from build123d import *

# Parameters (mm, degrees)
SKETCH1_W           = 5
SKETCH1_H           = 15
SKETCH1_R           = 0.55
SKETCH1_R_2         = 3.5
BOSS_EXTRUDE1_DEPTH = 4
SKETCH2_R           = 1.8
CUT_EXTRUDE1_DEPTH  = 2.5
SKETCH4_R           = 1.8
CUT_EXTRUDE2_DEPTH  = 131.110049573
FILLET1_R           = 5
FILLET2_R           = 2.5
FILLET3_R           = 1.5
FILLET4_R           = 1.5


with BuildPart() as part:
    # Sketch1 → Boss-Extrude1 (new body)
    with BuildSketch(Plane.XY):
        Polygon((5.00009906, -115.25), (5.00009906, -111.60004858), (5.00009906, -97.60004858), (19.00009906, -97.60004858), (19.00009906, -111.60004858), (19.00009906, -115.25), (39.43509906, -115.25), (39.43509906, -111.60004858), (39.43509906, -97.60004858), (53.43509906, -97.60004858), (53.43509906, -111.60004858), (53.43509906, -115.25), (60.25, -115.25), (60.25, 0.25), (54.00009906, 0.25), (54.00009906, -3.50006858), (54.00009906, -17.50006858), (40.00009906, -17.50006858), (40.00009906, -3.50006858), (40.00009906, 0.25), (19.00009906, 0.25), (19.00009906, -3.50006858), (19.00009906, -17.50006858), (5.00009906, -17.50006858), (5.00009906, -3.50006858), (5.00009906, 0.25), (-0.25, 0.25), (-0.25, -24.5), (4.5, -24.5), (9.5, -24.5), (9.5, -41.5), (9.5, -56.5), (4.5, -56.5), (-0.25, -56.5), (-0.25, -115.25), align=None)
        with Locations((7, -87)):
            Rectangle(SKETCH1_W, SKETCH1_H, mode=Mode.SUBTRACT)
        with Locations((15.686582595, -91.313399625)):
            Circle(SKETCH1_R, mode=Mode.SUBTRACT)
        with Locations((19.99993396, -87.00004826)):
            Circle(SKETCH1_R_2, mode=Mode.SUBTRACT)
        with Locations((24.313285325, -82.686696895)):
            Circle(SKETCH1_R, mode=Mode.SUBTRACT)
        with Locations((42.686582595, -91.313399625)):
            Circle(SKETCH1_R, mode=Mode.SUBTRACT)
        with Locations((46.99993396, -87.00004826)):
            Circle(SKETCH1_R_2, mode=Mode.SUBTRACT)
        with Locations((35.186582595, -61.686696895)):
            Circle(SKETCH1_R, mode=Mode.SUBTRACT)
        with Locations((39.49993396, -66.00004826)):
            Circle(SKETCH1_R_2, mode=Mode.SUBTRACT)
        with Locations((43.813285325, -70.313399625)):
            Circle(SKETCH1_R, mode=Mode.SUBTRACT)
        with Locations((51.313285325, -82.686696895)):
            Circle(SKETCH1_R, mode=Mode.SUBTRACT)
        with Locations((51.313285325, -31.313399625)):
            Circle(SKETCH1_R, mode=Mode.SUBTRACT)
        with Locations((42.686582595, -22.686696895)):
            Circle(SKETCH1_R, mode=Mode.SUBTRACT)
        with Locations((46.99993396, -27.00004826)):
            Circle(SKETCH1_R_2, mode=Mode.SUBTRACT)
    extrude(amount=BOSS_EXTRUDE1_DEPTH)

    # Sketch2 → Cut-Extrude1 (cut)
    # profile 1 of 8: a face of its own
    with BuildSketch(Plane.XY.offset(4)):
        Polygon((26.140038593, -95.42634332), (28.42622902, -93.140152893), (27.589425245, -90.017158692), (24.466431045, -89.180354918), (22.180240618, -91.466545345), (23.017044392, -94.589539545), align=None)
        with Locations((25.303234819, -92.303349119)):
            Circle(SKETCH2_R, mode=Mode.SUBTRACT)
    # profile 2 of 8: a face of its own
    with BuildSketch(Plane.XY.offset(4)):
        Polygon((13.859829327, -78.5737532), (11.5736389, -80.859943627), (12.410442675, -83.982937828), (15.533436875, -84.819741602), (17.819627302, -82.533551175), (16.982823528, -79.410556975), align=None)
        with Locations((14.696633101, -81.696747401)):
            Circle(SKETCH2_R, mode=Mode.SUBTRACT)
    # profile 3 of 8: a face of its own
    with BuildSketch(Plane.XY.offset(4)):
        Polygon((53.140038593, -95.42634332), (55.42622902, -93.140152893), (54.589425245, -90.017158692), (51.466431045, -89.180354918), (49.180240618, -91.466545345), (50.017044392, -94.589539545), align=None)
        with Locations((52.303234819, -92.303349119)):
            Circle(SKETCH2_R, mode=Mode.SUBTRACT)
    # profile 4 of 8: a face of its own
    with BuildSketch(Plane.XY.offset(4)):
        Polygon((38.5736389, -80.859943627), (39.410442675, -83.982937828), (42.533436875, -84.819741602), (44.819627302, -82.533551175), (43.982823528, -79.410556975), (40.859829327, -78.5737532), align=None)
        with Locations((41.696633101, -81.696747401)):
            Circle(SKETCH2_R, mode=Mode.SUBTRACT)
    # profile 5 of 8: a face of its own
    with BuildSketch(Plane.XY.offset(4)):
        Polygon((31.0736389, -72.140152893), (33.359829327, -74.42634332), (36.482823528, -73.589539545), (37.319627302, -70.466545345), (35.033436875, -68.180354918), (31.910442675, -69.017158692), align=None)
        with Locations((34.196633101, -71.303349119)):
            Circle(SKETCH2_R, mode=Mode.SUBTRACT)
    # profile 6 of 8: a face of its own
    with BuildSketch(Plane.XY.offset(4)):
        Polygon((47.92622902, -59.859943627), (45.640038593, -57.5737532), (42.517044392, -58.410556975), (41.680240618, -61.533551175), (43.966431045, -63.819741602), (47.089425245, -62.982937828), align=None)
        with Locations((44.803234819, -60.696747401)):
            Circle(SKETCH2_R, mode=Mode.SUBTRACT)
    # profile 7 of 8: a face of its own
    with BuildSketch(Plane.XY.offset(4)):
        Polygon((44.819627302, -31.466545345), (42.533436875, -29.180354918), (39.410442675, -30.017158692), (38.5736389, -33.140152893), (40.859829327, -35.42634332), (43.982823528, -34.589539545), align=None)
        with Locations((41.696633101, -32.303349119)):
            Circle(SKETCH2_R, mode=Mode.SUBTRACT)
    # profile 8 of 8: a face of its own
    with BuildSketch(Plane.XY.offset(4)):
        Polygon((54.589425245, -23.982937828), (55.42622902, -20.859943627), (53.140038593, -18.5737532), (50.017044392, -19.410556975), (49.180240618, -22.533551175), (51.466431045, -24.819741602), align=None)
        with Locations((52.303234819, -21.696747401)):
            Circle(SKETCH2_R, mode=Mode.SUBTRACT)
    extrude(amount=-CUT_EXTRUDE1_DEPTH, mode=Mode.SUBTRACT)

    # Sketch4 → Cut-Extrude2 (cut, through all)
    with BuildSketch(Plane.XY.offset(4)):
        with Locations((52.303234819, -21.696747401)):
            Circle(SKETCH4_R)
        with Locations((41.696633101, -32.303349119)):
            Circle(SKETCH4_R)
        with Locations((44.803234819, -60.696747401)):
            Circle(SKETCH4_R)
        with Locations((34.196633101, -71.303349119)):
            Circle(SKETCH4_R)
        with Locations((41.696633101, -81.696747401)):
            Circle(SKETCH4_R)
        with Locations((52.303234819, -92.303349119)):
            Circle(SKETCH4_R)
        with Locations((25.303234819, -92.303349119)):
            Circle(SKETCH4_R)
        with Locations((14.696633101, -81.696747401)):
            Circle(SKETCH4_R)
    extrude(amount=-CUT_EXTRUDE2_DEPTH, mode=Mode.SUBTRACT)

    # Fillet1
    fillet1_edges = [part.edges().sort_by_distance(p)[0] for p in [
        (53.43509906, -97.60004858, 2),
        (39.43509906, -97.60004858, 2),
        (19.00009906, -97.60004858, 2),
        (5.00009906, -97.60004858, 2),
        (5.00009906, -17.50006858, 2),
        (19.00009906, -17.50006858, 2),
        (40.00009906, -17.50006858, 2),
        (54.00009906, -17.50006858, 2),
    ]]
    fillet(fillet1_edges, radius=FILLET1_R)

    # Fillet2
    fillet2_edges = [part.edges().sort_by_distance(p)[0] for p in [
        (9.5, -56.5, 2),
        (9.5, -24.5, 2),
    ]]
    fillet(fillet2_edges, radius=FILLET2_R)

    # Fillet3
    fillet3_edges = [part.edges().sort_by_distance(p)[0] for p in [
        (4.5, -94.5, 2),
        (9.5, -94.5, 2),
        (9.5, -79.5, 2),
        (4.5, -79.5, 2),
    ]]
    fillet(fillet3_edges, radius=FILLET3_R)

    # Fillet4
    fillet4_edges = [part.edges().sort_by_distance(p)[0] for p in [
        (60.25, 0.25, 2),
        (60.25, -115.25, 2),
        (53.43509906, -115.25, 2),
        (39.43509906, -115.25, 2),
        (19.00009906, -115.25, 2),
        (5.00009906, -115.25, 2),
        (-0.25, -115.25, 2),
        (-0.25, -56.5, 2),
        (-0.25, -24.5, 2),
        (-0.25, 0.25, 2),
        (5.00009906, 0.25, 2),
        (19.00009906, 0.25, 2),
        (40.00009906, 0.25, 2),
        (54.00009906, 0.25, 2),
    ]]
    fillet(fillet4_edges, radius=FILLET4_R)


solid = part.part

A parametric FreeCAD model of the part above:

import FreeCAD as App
import Part
import Sketcher

V = App.Vector
Q = App.Units.Quantity


def edges_at(feature, points):
    """Names of the edges that pass closest to the given points."""
    edges = feature.Shape.Edges
    near = lambda p: min(range(len(edges)), key=lambda i: edges[i].distToShape(Part.Vertex(*p))[0])
    return sorted({f"Edge{near(p) + 1}" for p in points})


def add_polygon(sketch, points):
    """Adds a closed chain of lines whose ends are joined by coincident constraints."""
    first, n = sketch.GeometryCount, len(points)
    for a, b in zip(points, points[1:] + points[:1]):
        sketch.addGeometry(Part.LineSegment(App.Vector(*a, 0), App.Vector(*b, 0)), False)
    for i in range(n):
        sketch.addConstraint(Sketcher.Constraint("Coincident", first + i, 2, first + (i + 1) % n, 1))

doc = App.newDocument("Part")
body = doc.addObject("PartDesign::Body", "Body")

sketch1 = doc.addObject("Sketcher::SketchObject", "Sketch")
body.addObject(sketch1)
sketch1.AttachmentSupport = (doc.XY_Plane, [""])
sketch1.MapMode = "FlatFace"
add_polygon(sketch1, [(5.000099, -115.25), (5.000099, -97.600049), (19.000099, -97.600049), (19.000099, -115.25), (39.435099, -115.25), (39.435099, -97.600049), (53.435099, -97.600049), (53.435099, -115.25), (60.25, -115.25), (60.25, 0.25), (54.000099, 0.25), (54.000099, -17.500069), (40.000099, -17.500069), (40.000099, 0.25), (19.000099, 0.25), (19.000099, -17.500069), (5.000099, -17.500069), (5.000099, 0.25), (-0.25, 0.25), (-0.25, -24.5), (9.5, -24.5), (9.5, -56.5), (-0.25, -56.5), (-0.25, -115.25)])
add_polygon(sketch1, [(9.5, -94.5), (4.5, -94.5), (4.5, -79.5), (9.5, -79.5)])
sketch1.addGeometry(Part.Circle(V(15.686583, -91.3134, 0), V(0, 0, 1), 0.55), False)
sketch1.addGeometry(Part.Circle(V(19.999934, -87.000048, 0), V(0, 0, 1), 3.5), False)
sketch1.addGeometry(Part.Circle(V(24.313285, -82.686697, 0), V(0, 0, 1), 0.55), False)
sketch1.addGeometry(Part.Circle(V(42.686583, -91.3134, 0), V(0, 0, 1), 0.55), False)
sketch1.addGeometry(Part.Circle(V(46.999934, -87.000048, 0), V(0, 0, 1), 3.5), False)
sketch1.addGeometry(Part.Circle(V(51.313285, -82.686697, 0), V(0, 0, 1), 0.55), False)
sketch1.addGeometry(Part.Circle(V(39.499934, -66.000048, 0), V(0, 0, 1), 3.5), False)
sketch1.addGeometry(Part.Circle(V(35.186583, -61.686697, 0), V(0, 0, 1), 0.55), False)
sketch1.addGeometry(Part.Circle(V(43.813285, -70.3134, 0), V(0, 0, 1), 0.55), False)
sketch1.addGeometry(Part.Circle(V(51.313285, -31.3134, 0), V(0, 0, 1), 0.55), False)
sketch1.addGeometry(Part.Circle(V(42.686583, -22.686697, 0), V(0, 0, 1), 0.55), False)
sketch1.addGeometry(Part.Circle(V(46.999934, -27.000048, 0), V(0, 0, 1), 3.5), False)
sketch1.addConstraint([
    Sketcher.Constraint("Vertical", 0),
    Sketcher.Constraint("Horizontal", 1),
    Sketcher.Constraint("Vertical", 2),
    Sketcher.Constraint("Horizontal", 3),
    Sketcher.Constraint("Vertical", 4),
    Sketcher.Constraint("Horizontal", 5),
    Sketcher.Constraint("Vertical", 6),
    Sketcher.Constraint("Horizontal", 7),
    Sketcher.Constraint("Vertical", 8),
    Sketcher.Constraint("Horizontal", 9),
    Sketcher.Constraint("Vertical", 10),
    Sketcher.Constraint("Horizontal", 11),
    Sketcher.Constraint("Vertical", 12),
    Sketcher.Constraint("Horizontal", 13),
    Sketcher.Constraint("Vertical", 14),
    Sketcher.Constraint("Horizontal", 15),
    Sketcher.Constraint("Vertical", 16),
    Sketcher.Constraint("Horizontal", 17),
    Sketcher.Constraint("Vertical", 18),
    Sketcher.Constraint("Horizontal", 19),
    Sketcher.Constraint("Vertical", 20),
    Sketcher.Constraint("Horizontal", 21),
    Sketcher.Constraint("Vertical", 22),
    Sketcher.Constraint("Horizontal", 23),
    Sketcher.Constraint("Horizontal", 24),
    Sketcher.Constraint("Vertical", 25),
    Sketcher.Constraint("Horizontal", 26),
    Sketcher.Constraint("Vertical", 27),
    Sketcher.Constraint("Equal", 28, 30),
    Sketcher.Constraint("Equal", 30, 31),
    Sketcher.Constraint("Equal", 29, 32),
    Sketcher.Constraint("Equal", 31, 33),
    Sketcher.Constraint("Equal", 32, 34),
    Sketcher.Constraint("Equal", 33, 35),
    Sketcher.Constraint("Equal", 35, 36),
    Sketcher.Constraint("Equal", 36, 37),
    Sketcher.Constraint("Equal", 37, 38),
    Sketcher.Constraint("Equal", 34, 39),
    Sketcher.Constraint("Horizontal", 28, 3, 31, 3),
    Sketcher.Constraint("Horizontal", 29, 3, 32, 3),
    Sketcher.Constraint("Horizontal", 30, 3, 33, 3),
    Sketcher.Constraint("Horizontal", 1, 2, 4, 2),
    Sketcher.Constraint("Horizontal", 3, 2, 6, 2),
    Sketcher.Constraint("Horizontal", 9, 2, 12, 2),
    Sketcher.Constraint("Horizontal", 11, 2, 14, 2),
    Sketcher.Constraint("Horizontal", 13, 2, 16, 2),
    Sketcher.Constraint("Horizontal", 7, 2, 22, 2),
    Sketcher.Constraint("Vertical", 33, 3, 37, 3),
    Sketcher.Constraint("Vertical", 31, 3, 38, 3),
    Sketcher.Constraint("Vertical", 32, 3, 39, 3),
    Sketcher.Constraint("Vertical", 2, 2, 13, 2),
    Sketcher.Constraint("Vertical", 0, 2, 15, 2),
    Sketcher.Constraint("Vertical", 18, 2, 21, 2),
    Sketcher.Constraint("Vertical", 20, 2, 26, 2),
    Sketcher.Constraint("Equal", 1, 5),
    Sketcher.Constraint("Equal", 5, 11),
    Sketcher.Constraint("Diameter", 29, 7.0),
    Sketcher.Constraint("Diameter", 28, 1.1),
    Sketcher.Constraint("DistanceX", 1, 1, 1, 2, 14.0),
    Sketcher.Constraint("DistanceX", 13, 2, 13, 1, 21.0),
    Sketcher.Constraint("DistanceX", 24, 2, 24, 1, 5.0),
    Sketcher.Constraint("DistanceY", 20, 2, 20, 1, 32.0),
    Sketcher.Constraint("DistanceY", 25, 1, 25, 2, 15.0),
    Sketcher.Constraint("DistanceY", 8, 1, 8, 2, 115.5),
    Sketcher.Constraint("DistanceX", 28, 3, 31, 3, 27.0),
    Sketcher.Constraint("DistanceX", 29, 3, 32, 3, 27.0),
    Sketcher.Constraint("DistanceX", 30, 3, 33, 3, 27.0),
    Sketcher.Constraint("DistanceY", 32, 3, 34, 3, 21.0),
    Sketcher.Constraint("DistanceY", 30, 3, 35, 3, 21.0),
    Sketcher.Constraint("DistanceY", 31, 3, 36, 3, 21.0),
    Sketcher.Constraint("DistanceY", 36, 3, 37, 3, 39.0),
    Sketcher.Constraint("DistanceY", 35, 3, 38, 3, 39.0),
    Sketcher.Constraint("DistanceY", 34, 3, 39, 3, 39.0),
    Sketcher.Constraint("DistanceX", 19, 1, 19, 2, 9.75),
    Sketcher.Constraint("DistanceY", 18, 2, 18, 1, 24.75),
    Sketcher.Constraint("DistanceY", 18, 2, -1, 1, 24.5),
    Sketcher.Constraint("DistanceX", -1, 1, 19, 2, 9.5),
    Sketcher.Constraint("DistanceY", 24, 2, -1, 1, 94.5),
    Sketcher.Constraint("DistanceX", 34, 3, 32, 3, 7.5),
    Sketcher.Constraint("DistanceX", 36, 3, 33, 3, 7.5),
    Sketcher.Constraint("DistanceX", 35, 3, 38, 3, 7.5),
    Sketcher.Constraint("DistanceY", 0, 2, 29, 3, 10.6),
    Sketcher.Constraint("DistanceX", 3, 1, 3, 2, 20.435),
    Sketcher.Constraint("DistanceX", -1, 1, 7, 2, 60.25),
    Sketcher.Constraint("DistanceX", 7, 1, 7, 2, 6.814901),
    Sketcher.Constraint("DistanceY", 0, 1, 0, 2, 17.649951),
    Sketcher.Constraint("DistanceY", 10, 2, 10, 1, 17.750069),
    Sketcher.Constraint("DistanceY", 28, 3, -1, 1, 91.3134),
    Sketcher.Constraint("DistanceX", 28, 3, 29, 3, 4.313351),
    Sketcher.Constraint("DistanceX", 29, 3, 30, 3, 4.313351),
    Sketcher.Constraint("DistanceY", 29, 3, 30, 3, 4.313351),
    Sketcher.Constraint("DistanceX", -1, 1, 28, 3, 15.686583),
])
pad1 = doc.addObject("PartDesign::Pad", "Pad")
body.addObject(pad1)
pad1.Profile = sketch1
pad1.Length = 4

sketch2 = doc.addObject("Sketcher::SketchObject", "Sketch001")
body.addObject(sketch2)
sketch2.AttachmentSupport = (doc.XY_Plane, [""])
sketch2.MapMode = "FlatFace"
sketch2.AttachmentOffset = App.Placement(V(0, 0, 4), App.Rotation())
add_polygon(sketch2, [(26.140039, -95.426343), (28.426229, -93.140153), (27.589425, -90.017159), (24.466431, -89.180355), (22.180241, -91.466545), (23.017044, -94.58954)])
sketch2.addGeometry(Part.Circle(V(25.303235, -92.303349, 0), V(0, 0, 1), 1.8), False)
add_polygon(sketch2, [(13.859829, -78.573753), (11.573639, -80.859944), (12.410443, -83.982938), (15.533437, -84.819742), (17.819627, -82.533551), (16.982824, -79.410557)])
sketch2.addGeometry(Part.Circle(V(14.696633, -81.696747, 0), V(0, 0, 1), 1.8), False)
add_polygon(sketch2, [(53.140039, -95.426343), (55.426229, -93.140153), (54.589425, -90.017159), (51.466431, -89.180355), (49.180241, -91.466545), (50.017044, -94.58954)])
sketch2.addGeometry(Part.Circle(V(52.303235, -92.303349, 0), V(0, 0, 1), 1.8), False)
add_polygon(sketch2, [(38.573639, -80.859944), (39.410443, -83.982938), (42.533437, -84.819742), (44.819627, -82.533551), (43.982824, -79.410557), (40.859829, -78.573753)])
sketch2.addGeometry(Part.Circle(V(41.696633, -81.696747, 0), V(0, 0, 1), 1.8), False)
add_polygon(sketch2, [(31.073639, -72.140153), (33.359829, -74.426343), (36.482824, -73.58954), (37.319627, -70.466545), (35.033437, -68.180355), (31.910443, -69.017159)])
sketch2.addGeometry(Part.Circle(V(34.196633, -71.303349, 0), V(0, 0, 1), 1.8), False)
add_polygon(sketch2, [(47.926229, -59.859944), (45.640039, -57.573753), (42.517044, -58.410557), (41.680241, -61.533551), (43.966431, -63.819742), (47.089425, -62.982938)])
sketch2.addGeometry(Part.Circle(V(44.803235, -60.696747, 0), V(0, 0, 1), 1.8), False)
add_polygon(sketch2, [(44.819627, -31.466545), (42.533437, -29.180355), (39.410443, -30.017159), (38.573639, -33.140153), (40.859829, -35.426343), (43.982824, -34.58954)])
sketch2.addGeometry(Part.Circle(V(41.696633, -32.303349, 0), V(0, 0, 1), 1.8), False)
add_polygon(sketch2, [(54.589425, -23.982938), (55.426229, -20.859944), (53.140039, -18.573753), (50.017044, -19.410557), (49.180241, -22.533551), (51.466431, -24.819742)])
sketch2.addGeometry(Part.Circle(V(52.303235, -21.696747, 0), V(0, 0, 1), 1.8), False)
sketch2.addConstraint([
    Sketcher.Constraint("Equal", 6, 13),
    Sketcher.Constraint("Equal", 13, 20),
    Sketcher.Constraint("Equal", 20, 27),
    Sketcher.Constraint("Equal", 27, 34),
    Sketcher.Constraint("Equal", 34, 41),
    Sketcher.Constraint("Equal", 41, 48),
    Sketcher.Constraint("Equal", 48, 55),
    Sketcher.Constraint("Parallel", 0, 3),
    Sketcher.Constraint("Parallel", 1, 4),
    Sketcher.Constraint("Parallel", 2, 5),
    Sketcher.Constraint("Parallel", 3, 7),
    Sketcher.Constraint("Parallel", 4, 8),
    Sketcher.Constraint("Parallel", 5, 9),
    Sketcher.Constraint("Parallel", 7, 10),
    Sketcher.Constraint("Parallel", 8, 11),
    Sketcher.Constraint("Parallel", 9, 12),
    Sketcher.Constraint("Parallel", 10, 14),
    Sketcher.Constraint("Parallel", 11, 15),
    Sketcher.Constraint("Parallel", 12, 16),
    Sketcher.Constraint("Parallel", 14, 17),
    Sketcher.Constraint("Parallel", 15, 18),
    Sketcher.Constraint("Parallel", 16, 19),
    Sketcher.Constraint("Parallel", 18, 21),
    Sketcher.Constraint("Parallel", 19, 22),
    Sketcher.Constraint("Parallel", 17, 23),
    Sketcher.Constraint("Parallel", 21, 24),
    Sketcher.Constraint("Parallel", 22, 25),
    Sketcher.Constraint("Parallel", 23, 26),
    Sketcher.Constraint("Perpendicular", 26, 28),
    Sketcher.Constraint("Perpendicular", 24, 29),
    Sketcher.Constraint("Perpendicular", 25, 30),
    Sketcher.Constraint("Parallel", 28, 31),
    Sketcher.Constraint("Parallel", 29, 32),
    Sketcher.Constraint("Parallel", 30, 33),
    Sketcher.Constraint("Parallel", 31, 35),
    Sketcher.Constraint("Parallel", 32, 36),
    Sketcher.Constraint("Parallel", 33, 37),
    Sketcher.Constraint("Parallel", 35, 38),
    Sketcher.Constraint("Parallel", 36, 39),
    Sketcher.Constraint("Parallel", 37, 40),
    Sketcher.Constraint("Parallel", 38, 42),
    Sketcher.Constraint("Parallel", 39, 43),
    Sketcher.Constraint("Parallel", 40, 44),
    Sketcher.Constraint("Parallel", 42, 45),
    Sketcher.Constraint("Parallel", 43, 46),
    Sketcher.Constraint("Parallel", 44, 47),
    Sketcher.Constraint("Parallel", 47, 49),
    Sketcher.Constraint("Parallel", 45, 50),
    Sketcher.Constraint("Parallel", 46, 51),
    Sketcher.Constraint("Parallel", 49, 52),
    Sketcher.Constraint("Parallel", 50, 53),
    Sketcher.Constraint("Parallel", 51, 54),
    Sketcher.Constraint("Horizontal", 6, 3, 20, 3),
    Sketcher.Constraint("Horizontal", 13, 3, 27, 3),
    Sketcher.Constraint("Horizontal", 0, 2, 14, 2),
    Sketcher.Constraint("Horizontal", 1, 2, 15, 2),
    Sketcher.Constraint("Horizontal", 2, 2, 16, 2),
    Sketcher.Constraint("Horizontal", 3, 2, 17, 2),
    Sketcher.Constraint("Horizontal", 4, 2, 18, 2),
    Sketcher.Constraint("Horizontal", 8, 2, 21, 2),
    Sketcher.Constraint("Horizontal", 9, 2, 22, 2),
    Sketcher.Constraint("Horizontal", 10, 2, 23, 2),
    Sketcher.Constraint("Horizontal", 11, 2, 24, 2),
    Sketcher.Constraint("Horizontal", 12, 2, 25, 2),
    Sketcher.Constraint("Vertical", 27, 3, 48, 3),
    Sketcher.Constraint("Vertical", 20, 3, 55, 3),
    Sketcher.Constraint("Vertical", 22, 2, 42, 2),
    Sketcher.Constraint("Vertical", 21, 2, 43, 2),
    Sketcher.Constraint("Vertical", 26, 2, 44, 2),
    Sketcher.Constraint("Vertical", 25, 2, 45, 2),
    Sketcher.Constraint("Vertical", 24, 2, 46, 2),
    Sketcher.Constraint("Vertical", 14, 2, 49, 2),
    Sketcher.Constraint("Vertical", 19, 2, 50, 2),
    Sketcher.Constraint("Vertical", 18, 2, 51, 2),
    Sketcher.Constraint("Vertical", 17, 2, 52, 2),
    Sketcher.Constraint("Vertical", 16, 2, 53, 2),
    Sketcher.Constraint("Equal", 0, 1),
    Sketcher.Constraint("Equal", 1, 2),
    Sketcher.Constraint("Equal", 2, 3),
    Sketcher.Constraint("Equal", 5, 7),
    Sketcher.Constraint("Equal", 7, 8),
    Sketcher.Constraint("Equal", 8, 9),
    Sketcher.Constraint("Equal", 9, 10),
    Sketcher.Constraint("Equal", 26, 28),
    Sketcher.Constraint("Equal", 28, 29),
    Sketcher.Constraint("Equal", 29, 30),
    Sketcher.Constraint("Equal", 30, 31),
    Sketcher.Constraint("Equal", 33, 35),
    Sketcher.Constraint("Equal", 35, 36),
    Sketcher.Constraint("Equal", 36, 37),
    Sketcher.Constraint("Equal", 37, 38),
    Sketcher.Constraint("Equal", 40, 42),
    Sketcher.Constraint("Equal", 42, 43),
    Sketcher.Constraint("Diameter", 6, 3.6),
    Sketcher.Constraint("Angle", 1, Q("105 deg")),
    Sketcher.Constraint("DistanceX", 6, 3, 20, 3, 27.0),
    Sketcher.Constraint("DistanceX", 13, 3, 27, 3, 27.0),
    Sketcher.Constraint("DistanceY", 6, 3, 34, 3, 21.0),
    Sketcher.Constraint("DistanceY", 27, 3, 41, 3, 21.0),
    Sketcher.Constraint("DistanceY", 34, 3, 48, 3, 39.0),
    Sketcher.Constraint("DistanceY", 41, 3, 55, 3, 39.0),
    Sketcher.Constraint("DistanceX", 0, 2, 14, 2, 27.0),
    Sketcher.Constraint("DistanceX", 34, 3, 27, 3, 7.5),
    Sketcher.Constraint("DistanceX", 41, 3, 20, 3, 7.5),
    Sketcher.Constraint("DistanceX", 28, 2, 25, 2, 7.5),
    Sketcher.Constraint("DistanceX", 13, 3, 6, 3, 10.606602),
    Sketcher.Constraint("DistanceY", 6, 3, 13, 3, 10.606602),
    Sketcher.Constraint("DistanceX", 7, 2, 3, 2, 10.606602),
    Sketcher.Constraint("DistanceY", 3, 2, 7, 2, 10.606602),
    Sketcher.Constraint("DistanceY", 26, 2, 28, 2, 6.4336),
    Sketcher.Constraint("DistanceY", 26, 2, 30, 2, 10.393398),
    Sketcher.Constraint("DistanceX", 31, 2, 35, 2, 10.606602),
    Sketcher.Constraint("DistanceY", 31, 2, 35, 2, 10.606602),
    Sketcher.Constraint("DistanceY", 35, 2, 42, 2, 28.393398),
    Sketcher.Constraint("DistanceX", 47, 2, 49, 2, 10.606602),
    Sketcher.Constraint("DistanceY", 47, 2, 49, 2, 10.606602),
    Sketcher.Constraint("DistanceY", 6, 3, -1, 1, 92.303349),
    Sketcher.Constraint("DistanceX", -1, 1, 0, 2, 28.426229),
    Sketcher.Constraint("DistanceY", 1, 2, -1, 1, 90.017159),
    Sketcher.Constraint("DistanceX", 6, 3, 1, 2, 2.28619),
])
pocket1 = doc.addObject("PartDesign::Pocket", "Pocket")
body.addObject(pocket1)
pocket1.Profile = sketch2
pocket1.Length = 2.5

sketch3 = doc.addObject("Sketcher::SketchObject", "Sketch002")
body.addObject(sketch3)
sketch3.AttachmentSupport = (doc.XY_Plane, [""])
sketch3.MapMode = "FlatFace"
sketch3.AttachmentOffset = App.Placement(V(0, 0, 4), App.Rotation())
sketch3.addGeometry([
    Part.Circle(V(52.303235, -21.696747, 0), V(0, 0, 1), 1.8),
    Part.Circle(V(41.696633, -32.303349, 0), V(0, 0, 1), 1.8),
    Part.Circle(V(44.803235, -60.696747, 0), V(0, 0, 1), 1.8),
    Part.Circle(V(34.196633, -71.303349, 0), V(0, 0, 1), 1.8),
    Part.Circle(V(41.696633, -81.696747, 0), V(0, 0, 1), 1.8),
    Part.Circle(V(52.303235, -92.303349, 0), V(0, 0, 1), 1.8),
    Part.Circle(V(25.303235, -92.303349, 0), V(0, 0, 1), 1.8),
    Part.Circle(V(14.696633, -81.696747, 0), V(0, 0, 1), 1.8),
], False)
sketch3.addConstraint([
    Sketcher.Constraint("Equal", 0, 1),
    Sketcher.Constraint("Equal", 1, 2),
    Sketcher.Constraint("Equal", 2, 3),
    Sketcher.Constraint("Equal", 3, 4),
    Sketcher.Constraint("Equal", 4, 5),
    Sketcher.Constraint("Equal", 5, 6),
    Sketcher.Constraint("Equal", 6, 7),
    Sketcher.Constraint("Horizontal", 5, 3, 6, 3),
    Sketcher.Constraint("Horizontal", 4, 3, 7, 3),
    Sketcher.Constraint("Vertical", 1, 3, 4, 3),
    Sketcher.Constraint("Vertical", 0, 3, 5, 3),
    Sketcher.Constraint("Diameter", 0, 3.6),
    Sketcher.Constraint("DistanceY", 2, 3, 0, 3, 39.0),
    Sketcher.Constraint("DistanceY", 3, 3, 1, 3, 39.0),
    Sketcher.Constraint("DistanceY", 4, 3, 2, 3, 21.0),
    Sketcher.Constraint("DistanceY", 5, 3, 3, 3, 21.0),
    Sketcher.Constraint("DistanceX", 6, 3, 5, 3, 27.0),
    Sketcher.Constraint("DistanceX", 7, 3, 4, 3, 27.0),
    Sketcher.Constraint("DistanceX", 2, 3, 0, 3, 7.5),
    Sketcher.Constraint("DistanceX", 3, 3, 1, 3, 7.5),
    Sketcher.Constraint("DistanceX", 1, 3, 0, 3, 10.606602),
    Sketcher.Constraint("DistanceY", 1, 3, 0, 3, 10.606602),
    Sketcher.Constraint("DistanceY", 1, 3, -1, 1, 32.303349),
    Sketcher.Constraint("DistanceX", -1, 1, 0, 3, 52.303235),
])
pocket2 = doc.addObject("PartDesign::Pocket", "Pocket001")
body.addObject(pocket2)
pocket2.Profile = sketch3
pocket2.Type = "ThroughAll"
doc.recompute()

fillet = doc.addObject("PartDesign::Fillet", "Fillet")
body.addObject(fillet)
fillet.Base = (pocket2, edges_at(pocket2, [
    (53.435, -97.6, 2),
    (39.435, -97.6, 2),
    (19, -97.6, 2),
    (5, -97.6, 2),
    (5, -17.5, 2),
    (19, -17.5, 2),
    (40, -17.5, 2),
    (54, -17.5, 2),
]))
fillet.Radius = 5
doc.recompute()

fillet2 = doc.addObject("PartDesign::Fillet", "Fillet001")
body.addObject(fillet2)
fillet2.Base = (fillet, edges_at(fillet, [(9.5, -56.5, 2), (9.5, -24.5, 2)]))
fillet2.Radius = 2.5
doc.recompute()

fillet3 = doc.addObject("PartDesign::Fillet", "Fillet002")
body.addObject(fillet3)
fillet3.Base = (fillet2, edges_at(fillet2, [
    (4.5, -94.5, 2),
    (9.5, -94.5, 2),
    (9.5, -79.5, 2),
    (4.5, -79.5, 2),
]))
fillet3.Radius = 1.5
doc.recompute()

fillet4 = doc.addObject("PartDesign::Fillet", "Fillet003")
body.addObject(fillet4)
fillet4.Base = (fillet3, edges_at(fillet3, [
    (60.25, 0.25, 2),
    (60.25, -115.25, 2),
    (53.435, -115.25, 2),
    (39.435, -115.25, 2),
    (19, -115.25, 2),
    (5, -115.25, 2),
    (-0.25, -115.25, 2),
    (-0.25, -56.5, 2),
    (-0.25, -24.5, 2),
    (-0.25, 0.25, 2),
    (5, 0.25, 2),
    (19, 0.25, 2),
    (40, 0.25, 2),
    (54, 0.25, 2),
]))
fillet4.Radius = 1.5

doc.recompute()
